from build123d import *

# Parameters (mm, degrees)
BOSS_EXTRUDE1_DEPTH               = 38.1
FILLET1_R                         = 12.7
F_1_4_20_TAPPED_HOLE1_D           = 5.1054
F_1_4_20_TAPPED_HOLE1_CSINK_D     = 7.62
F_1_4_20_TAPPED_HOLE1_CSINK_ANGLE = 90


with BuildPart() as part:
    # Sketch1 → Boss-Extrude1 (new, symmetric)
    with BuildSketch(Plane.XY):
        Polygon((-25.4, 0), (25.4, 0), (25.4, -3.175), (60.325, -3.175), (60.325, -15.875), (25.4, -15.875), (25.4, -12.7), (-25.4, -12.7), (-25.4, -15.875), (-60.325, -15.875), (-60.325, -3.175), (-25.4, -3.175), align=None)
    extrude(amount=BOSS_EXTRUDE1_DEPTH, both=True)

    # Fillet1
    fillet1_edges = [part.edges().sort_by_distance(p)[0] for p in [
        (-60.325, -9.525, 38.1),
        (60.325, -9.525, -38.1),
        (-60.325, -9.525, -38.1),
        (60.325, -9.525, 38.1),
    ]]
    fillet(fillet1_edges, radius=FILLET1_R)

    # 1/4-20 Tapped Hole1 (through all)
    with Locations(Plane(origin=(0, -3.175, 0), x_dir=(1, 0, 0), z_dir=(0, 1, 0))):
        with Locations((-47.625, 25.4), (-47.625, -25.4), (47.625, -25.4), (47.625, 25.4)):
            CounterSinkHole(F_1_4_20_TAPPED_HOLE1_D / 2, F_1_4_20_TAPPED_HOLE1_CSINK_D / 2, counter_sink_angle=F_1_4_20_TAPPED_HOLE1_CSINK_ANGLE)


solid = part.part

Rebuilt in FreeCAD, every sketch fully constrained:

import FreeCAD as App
import Part
import Sketcher
Q = App.Units.Quantity


def edges_at(feature, points):
    """Names of the edges that pass closest to the given points."""
    edges = feature.Shape.Edges
    near = lambda p: min(range(len(edges)), key=lambda i: edges[i].distToShape(Part.Vertex(*p))[0])
    return sorted({f"Edge{near(p) + 1}" for p in points})

doc = App.newDocument("Part")
body = doc.addObject("PartDesign::Body", "Body")

# Sketch on XY plane
sketch1 = body.newObject("Sketcher::SketchObject", "Sketch")
sketch1.AttachmentSupport = (doc.getObject("XY_Plane"), [""])
sketch1.MapMode = "FlatFace"
sketch1.addGeometry([
    Part.LineSegment(App.Vector(25.4, 0, 0), App.Vector(-25.4, 0, 0)),  # 0
    Part.LineSegment(App.Vector(-25.4, 0, 0), App.Vector(-25.4, -3.2, 0)),  # 1
    Part.LineSegment(App.Vector(-25.4, -3.2, 0), App.Vector(-60.3, -3.2, 0)),  # 2
    Part.LineSegment(App.Vector(-60.3, -3.2, 0), App.Vector(-60.3, -15.9, 0)),  # 3
    Part.LineSegment(App.Vector(-60.3, -15.9, 0), App.Vector(-25.4, -15.9, 0)),  # 4
    Part.LineSegment(App.Vector(-25.4, -15.9, 0), App.Vector(-25.4, -12.7, 0)),  # 5
    Part.LineSegment(App.Vector(-25.4, -12.7, 0), App.Vector(25.4, -12.7, 0)),  # 6
    Part.LineSegment(App.Vector(25.4, -12.7, 0), App.Vector(25.4, -15.9, 0)),  # 7
    Part.LineSegment(App.Vector(25.4, -15.9, 0), App.Vector(60.3, -15.9, 0)),  # 8
    Part.LineSegment(App.Vector(60.3, -15.9, 0), App.Vector(60.3, -3.2, 0)),  # 9
    Part.LineSegment(App.Vector(60.3, -3.2, 0), App.Vector(25.4, -3.2, 0)),  # 10
    Part.LineSegment(App.Vector(25.4, -3.2, 0), App.Vector(25.4, 0, 0)),  # 11
], False)
sketch1.addConstraint([
    Sketcher.Constraint("Coincident", 0, 2, 1, 1),
    Sketcher.Constraint("Coincident", 1, 2, 2, 1),
    Sketcher.Constraint("Coincident", 2, 2, 3, 1),
    Sketcher.Constraint("Coincident", 3, 2, 4, 1),
    Sketcher.Constraint("Coincident", 4, 2, 5, 1),
    Sketcher.Constraint("Coincident", 5, 2, 6, 1),
    Sketcher.Constraint("Coincident", 6, 2, 7, 1),
    Sketcher.Constraint("Coincident", 7, 2, 8, 1),
    Sketcher.Constraint("Coincident", 8, 2, 9, 1),
    Sketcher.Constraint("Coincident", 9, 2, 10, 1),
    Sketcher.Constraint("Coincident", 10, 2, 11, 1),
    Sketcher.Constraint("Coincident", 11, 2, 0, 1),
    Sketcher.Constraint("Horizontal", 0),
    Sketcher.Constraint("Vertical", 1),
    Sketcher.Constraint("Horizontal", 2),
    Sketcher.Constraint("Vertical", 3),
    Sketcher.Constraint("Horizontal", 4),
    Sketcher.Constraint("Vertical", 5),
    Sketcher.Constraint("Horizontal", 6),
    Sketcher.Constraint("Vertical", 7),
    Sketcher.Constraint("Horizontal", 8),
    Sketcher.Constraint("Vertical", 9),
    Sketcher.Constraint("Horizontal", 10),
    Sketcher.Constraint("Vertical", 11),
    Sketcher.Constraint("Symmetric", 0, 2, 11, 2, -1, 1),
    Sketcher.Constraint("Symmetric", 4, 2, 7, 2, -2),
    Sketcher.Constraint("Symmetric", 2, 2, 9, 2, -2),
    Sketcher.Constraint("Vertical", 1, 2, 4, 2),
    Sketcher.Constraint("Equal", 1, 5),
    Sketcher.Constraint("DistanceX", 0, 2, 0, 1, Q("2 in")),
    Sketcher.Constraint("DistanceY", 3, 2, 3, 1, Q("0.5 in")),
    Sketcher.Constraint("DistanceX", 2, 2, 2, 1, Q("1.375 in")),
    Sketcher.Constraint("DistanceY", 1, 2, 1, 1, Q("0.125 in")),
])
pad1 = body.newObject("PartDesign::Pad", "Pad")
pad1.Profile = sketch1
pad1.Length = Q("3 in")
pad1.Midplane = True
doc.recompute()

fillet = body.newObject("PartDesign::Fillet", "Fillet")
fillet.Base = (pad1, edges_at(pad1, [
    (-60.325, -9.525, 38.1),
    (60.325, -9.525, -38.1),
    (-60.325, -9.525, -38.1),
    (60.325, -9.525, 38.1),
]))
fillet.Radius = Q("0.5 in")

# Sketch on XZ plane
sketch2 = body.newObject("Sketcher::SketchObject", "Sketch001")
sketch2.AttachmentSupport = (doc.getObject("XZ_Plane"), [""])
sketch2.MapMode = "FlatFace"
sketch2.AttachmentOffset = App.Placement(App.Vector(0, 0, 0.125 * 25.4), App.Rotation())
sketch2.addGeometry([
    Part.Circle(App.Vector(-47.6, -25.4, 0), App.Vector(0, 0, 1), 2.6),
    Part.Circle(App.Vector(-47.6, 25.4, 0), App.Vector(0, 0, 1), 2.6),
    Part.Circle(App.Vector(47.6, 25.4, 0), App.Vector(0, 0, 1), 2.6),
    Part.Circle(App.Vector(47.6, -25.4, 0), App.Vector(0, 0, 1), 2.6),
], False)
sketch2.addConstraint([
    Sketcher.Constraint("Equal", 0, 1),
    Sketcher.Constraint("Equal", 1, 2),
    Sketcher.Constraint("Equal", 2, 3),
    Sketcher.Constraint("Symmetric", 0, 3, 2, 3, -1, 1),
    Sketcher.Constraint("Symmetric", 1, 3, 3, 3, -1, 1),
    Sketcher.Constraint("Symmetric", 1, 3, 2, 3, -2),
    Sketcher.Constraint("Diameter", 0, Q("0.201 in")),
    Sketcher.Constraint("DistanceY", 0, 3, -1, 1, Q("1 in")),
    Sketcher.Constraint("DistanceX", 1, 3, 2, 3, Q("3.75 in")),
])
doc.recompute()
hole = body.newObject("PartDesign::Hole", "Hole")
hole.Profile = sketch2
hole.ThreadType = "None"
hole.Diameter = Q("0.201 in")
hole.DepthType = "ThroughAll"
hole.HoleCutType = "Countersink"
hole.HoleCutDiameter = Q("0.3 in")
hole.HoleCutCountersinkAngle = 90
hole.Reversed = True

doc.recompute()
